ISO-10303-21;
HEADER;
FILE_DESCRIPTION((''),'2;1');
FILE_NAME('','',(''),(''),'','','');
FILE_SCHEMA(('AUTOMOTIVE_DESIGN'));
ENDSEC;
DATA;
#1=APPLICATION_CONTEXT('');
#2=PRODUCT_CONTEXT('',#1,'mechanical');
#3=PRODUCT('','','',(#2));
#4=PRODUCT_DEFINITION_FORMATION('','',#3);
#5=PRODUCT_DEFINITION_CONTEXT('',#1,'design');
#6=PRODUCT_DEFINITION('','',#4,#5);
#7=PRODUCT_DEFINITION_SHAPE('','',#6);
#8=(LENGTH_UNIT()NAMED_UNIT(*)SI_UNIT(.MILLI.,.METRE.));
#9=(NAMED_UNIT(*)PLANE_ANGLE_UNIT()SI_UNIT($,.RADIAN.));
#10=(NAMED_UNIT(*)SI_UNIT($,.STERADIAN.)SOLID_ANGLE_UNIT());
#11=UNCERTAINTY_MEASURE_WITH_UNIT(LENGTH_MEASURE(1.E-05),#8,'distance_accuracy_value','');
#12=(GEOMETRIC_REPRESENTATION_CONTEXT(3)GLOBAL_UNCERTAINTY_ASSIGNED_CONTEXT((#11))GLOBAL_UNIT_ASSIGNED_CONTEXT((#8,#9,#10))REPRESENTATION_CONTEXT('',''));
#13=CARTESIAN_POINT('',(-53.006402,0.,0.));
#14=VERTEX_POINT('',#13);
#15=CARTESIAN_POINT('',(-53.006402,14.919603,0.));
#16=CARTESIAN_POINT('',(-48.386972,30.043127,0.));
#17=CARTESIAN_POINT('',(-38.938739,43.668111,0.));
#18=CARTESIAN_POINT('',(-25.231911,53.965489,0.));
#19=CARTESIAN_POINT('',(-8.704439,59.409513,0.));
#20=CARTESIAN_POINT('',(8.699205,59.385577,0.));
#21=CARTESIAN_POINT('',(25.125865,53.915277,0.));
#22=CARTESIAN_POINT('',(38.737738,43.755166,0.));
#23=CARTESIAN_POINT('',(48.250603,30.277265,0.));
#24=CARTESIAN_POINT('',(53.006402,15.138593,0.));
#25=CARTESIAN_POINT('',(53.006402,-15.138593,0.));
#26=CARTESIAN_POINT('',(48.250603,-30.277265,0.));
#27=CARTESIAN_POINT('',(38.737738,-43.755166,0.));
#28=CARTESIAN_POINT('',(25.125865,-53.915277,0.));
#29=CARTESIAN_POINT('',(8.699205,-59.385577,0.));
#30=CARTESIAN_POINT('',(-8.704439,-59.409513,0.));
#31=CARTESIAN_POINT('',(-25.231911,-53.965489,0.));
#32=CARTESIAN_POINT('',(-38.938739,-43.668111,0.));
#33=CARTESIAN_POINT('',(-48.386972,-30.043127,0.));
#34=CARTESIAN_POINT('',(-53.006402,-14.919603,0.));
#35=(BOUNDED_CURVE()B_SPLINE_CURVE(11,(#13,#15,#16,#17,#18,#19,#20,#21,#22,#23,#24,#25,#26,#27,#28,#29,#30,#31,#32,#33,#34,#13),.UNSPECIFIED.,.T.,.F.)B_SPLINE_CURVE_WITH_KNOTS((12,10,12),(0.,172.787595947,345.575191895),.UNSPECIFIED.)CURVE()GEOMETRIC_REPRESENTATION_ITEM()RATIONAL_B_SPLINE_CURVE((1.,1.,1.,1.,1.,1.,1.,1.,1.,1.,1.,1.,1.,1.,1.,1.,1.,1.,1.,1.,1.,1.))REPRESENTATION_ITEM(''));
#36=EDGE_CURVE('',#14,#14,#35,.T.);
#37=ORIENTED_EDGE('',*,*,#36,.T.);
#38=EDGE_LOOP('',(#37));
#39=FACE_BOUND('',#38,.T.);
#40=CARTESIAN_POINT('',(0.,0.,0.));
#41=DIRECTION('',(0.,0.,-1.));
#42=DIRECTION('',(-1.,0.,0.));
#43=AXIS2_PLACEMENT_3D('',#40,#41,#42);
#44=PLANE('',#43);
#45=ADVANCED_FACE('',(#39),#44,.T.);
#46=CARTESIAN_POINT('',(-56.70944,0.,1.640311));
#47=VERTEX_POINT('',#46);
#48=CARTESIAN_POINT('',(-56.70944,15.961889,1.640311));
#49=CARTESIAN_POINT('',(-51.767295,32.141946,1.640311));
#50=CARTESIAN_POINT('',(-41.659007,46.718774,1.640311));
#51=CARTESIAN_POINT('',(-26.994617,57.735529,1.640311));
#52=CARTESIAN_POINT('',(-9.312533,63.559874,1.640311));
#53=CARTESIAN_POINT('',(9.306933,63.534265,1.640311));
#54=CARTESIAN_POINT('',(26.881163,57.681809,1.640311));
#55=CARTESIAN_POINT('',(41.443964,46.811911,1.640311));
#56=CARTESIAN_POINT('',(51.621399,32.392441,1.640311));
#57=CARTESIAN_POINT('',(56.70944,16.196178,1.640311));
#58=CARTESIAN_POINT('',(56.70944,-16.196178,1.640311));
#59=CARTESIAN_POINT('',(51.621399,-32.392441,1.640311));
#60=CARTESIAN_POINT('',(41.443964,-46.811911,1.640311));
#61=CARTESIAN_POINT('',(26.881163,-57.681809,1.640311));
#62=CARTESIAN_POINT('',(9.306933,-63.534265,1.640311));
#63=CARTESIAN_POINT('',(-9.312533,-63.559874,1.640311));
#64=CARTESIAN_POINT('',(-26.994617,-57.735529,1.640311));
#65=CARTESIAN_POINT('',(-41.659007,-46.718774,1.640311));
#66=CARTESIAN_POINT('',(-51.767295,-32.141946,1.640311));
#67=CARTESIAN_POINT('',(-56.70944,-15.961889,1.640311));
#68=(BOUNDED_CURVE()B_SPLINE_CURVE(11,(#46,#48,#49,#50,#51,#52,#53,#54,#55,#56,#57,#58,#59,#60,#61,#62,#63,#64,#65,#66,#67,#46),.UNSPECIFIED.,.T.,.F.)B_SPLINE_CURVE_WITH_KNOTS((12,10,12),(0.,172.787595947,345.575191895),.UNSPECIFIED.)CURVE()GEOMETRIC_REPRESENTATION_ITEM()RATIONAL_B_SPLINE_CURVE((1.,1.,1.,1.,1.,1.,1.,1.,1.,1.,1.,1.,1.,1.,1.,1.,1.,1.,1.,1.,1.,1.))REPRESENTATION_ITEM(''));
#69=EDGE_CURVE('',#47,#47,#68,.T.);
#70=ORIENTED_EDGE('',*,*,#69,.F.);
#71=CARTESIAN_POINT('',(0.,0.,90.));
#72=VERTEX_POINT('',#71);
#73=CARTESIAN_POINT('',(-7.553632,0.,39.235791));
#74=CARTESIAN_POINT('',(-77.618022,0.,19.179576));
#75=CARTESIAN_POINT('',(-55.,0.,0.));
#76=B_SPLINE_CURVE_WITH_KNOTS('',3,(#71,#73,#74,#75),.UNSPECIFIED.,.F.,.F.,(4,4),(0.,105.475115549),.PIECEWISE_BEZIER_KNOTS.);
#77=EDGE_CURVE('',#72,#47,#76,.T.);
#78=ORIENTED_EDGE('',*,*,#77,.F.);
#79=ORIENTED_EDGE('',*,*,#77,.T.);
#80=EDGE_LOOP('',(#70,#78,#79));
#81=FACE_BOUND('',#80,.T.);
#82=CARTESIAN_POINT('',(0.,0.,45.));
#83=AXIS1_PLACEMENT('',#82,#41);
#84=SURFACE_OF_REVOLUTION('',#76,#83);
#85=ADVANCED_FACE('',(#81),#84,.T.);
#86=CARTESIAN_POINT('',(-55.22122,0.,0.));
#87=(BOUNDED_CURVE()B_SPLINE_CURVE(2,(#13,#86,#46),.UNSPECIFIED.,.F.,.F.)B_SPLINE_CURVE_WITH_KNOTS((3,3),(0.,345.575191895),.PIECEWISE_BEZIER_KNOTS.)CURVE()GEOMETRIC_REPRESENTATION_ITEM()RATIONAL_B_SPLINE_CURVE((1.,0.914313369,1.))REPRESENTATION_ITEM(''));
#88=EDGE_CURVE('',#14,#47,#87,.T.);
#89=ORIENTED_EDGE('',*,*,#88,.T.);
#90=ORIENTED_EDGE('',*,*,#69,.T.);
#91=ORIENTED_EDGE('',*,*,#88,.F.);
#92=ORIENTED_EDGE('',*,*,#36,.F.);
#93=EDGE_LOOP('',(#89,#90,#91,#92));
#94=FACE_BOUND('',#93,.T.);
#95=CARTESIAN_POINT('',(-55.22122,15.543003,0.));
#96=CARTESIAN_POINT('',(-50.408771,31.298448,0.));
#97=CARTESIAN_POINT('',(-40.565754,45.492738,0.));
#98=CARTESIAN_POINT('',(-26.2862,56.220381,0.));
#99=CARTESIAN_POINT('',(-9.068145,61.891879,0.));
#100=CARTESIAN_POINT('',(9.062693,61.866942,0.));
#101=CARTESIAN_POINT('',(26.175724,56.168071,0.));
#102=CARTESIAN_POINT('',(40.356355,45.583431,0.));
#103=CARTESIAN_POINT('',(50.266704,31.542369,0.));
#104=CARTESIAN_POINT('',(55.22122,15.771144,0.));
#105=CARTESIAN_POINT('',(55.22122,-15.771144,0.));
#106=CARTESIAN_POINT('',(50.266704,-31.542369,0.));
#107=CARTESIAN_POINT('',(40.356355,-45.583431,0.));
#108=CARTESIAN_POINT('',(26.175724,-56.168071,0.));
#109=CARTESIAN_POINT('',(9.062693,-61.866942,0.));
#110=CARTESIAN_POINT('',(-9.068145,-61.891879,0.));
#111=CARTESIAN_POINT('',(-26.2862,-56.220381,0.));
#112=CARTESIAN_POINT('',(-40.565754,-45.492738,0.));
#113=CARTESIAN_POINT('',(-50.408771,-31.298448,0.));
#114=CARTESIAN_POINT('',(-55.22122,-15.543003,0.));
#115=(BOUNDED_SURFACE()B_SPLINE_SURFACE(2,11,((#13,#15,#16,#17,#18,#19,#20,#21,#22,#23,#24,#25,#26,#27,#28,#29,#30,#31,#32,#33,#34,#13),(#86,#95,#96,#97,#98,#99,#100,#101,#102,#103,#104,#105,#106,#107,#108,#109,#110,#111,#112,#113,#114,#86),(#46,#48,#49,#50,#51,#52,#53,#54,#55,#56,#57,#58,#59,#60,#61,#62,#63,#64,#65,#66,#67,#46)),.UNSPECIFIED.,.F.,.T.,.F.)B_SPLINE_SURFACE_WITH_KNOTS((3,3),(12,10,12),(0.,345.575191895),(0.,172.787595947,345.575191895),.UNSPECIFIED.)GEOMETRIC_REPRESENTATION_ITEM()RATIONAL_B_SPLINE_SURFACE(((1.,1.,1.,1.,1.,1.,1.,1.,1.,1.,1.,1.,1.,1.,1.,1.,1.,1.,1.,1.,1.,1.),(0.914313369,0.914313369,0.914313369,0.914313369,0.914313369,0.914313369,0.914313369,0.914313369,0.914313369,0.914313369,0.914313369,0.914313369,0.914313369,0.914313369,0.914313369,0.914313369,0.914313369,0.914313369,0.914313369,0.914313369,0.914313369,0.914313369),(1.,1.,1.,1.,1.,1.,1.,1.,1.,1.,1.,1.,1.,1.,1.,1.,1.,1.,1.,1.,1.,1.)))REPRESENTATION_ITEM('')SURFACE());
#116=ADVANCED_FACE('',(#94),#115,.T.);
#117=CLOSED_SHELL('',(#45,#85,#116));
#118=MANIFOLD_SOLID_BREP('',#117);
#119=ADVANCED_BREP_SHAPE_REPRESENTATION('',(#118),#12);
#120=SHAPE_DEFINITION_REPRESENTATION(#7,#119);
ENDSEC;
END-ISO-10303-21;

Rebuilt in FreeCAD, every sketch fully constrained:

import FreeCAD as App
import Part
import Sketcher


def edges_at(feature, points):
    """Names of the edges that pass closest to the given points."""
    edges = feature.Shape.Edges
    near = lambda p: min(range(len(edges)), key=lambda i: edges[i].distToShape(Part.Vertex(*p))[0])
    return sorted({f"Edge{near(p) + 1}" for p in points})

doc = App.newDocument("Part")
body = doc.addObject("PartDesign::Body", "Body")

# Sketch on XZ plane
sketch1 = doc.addObject("Sketcher::SketchObject", "Sketch")
body.addObject(sketch1)
sketch1.AttachmentSupport = (doc.XZ_Plane, [""])
sketch1.MapMode = "FlatFace"
sketch1.addGeometry([
    Part.LineSegment(App.Vector(-55, 0, 0), App.Vector(0, 0, 0)),
    Part.LineSegment(App.Vector(0, 0, 0), App.Vector(0, 90, 0)),
    Part.BSplineCurve([App.Vector(0, 90, 0), App.Vector(-7.553632, 39.235791, 0), App.Vector(-77.618022, 19.179576, 0), App.Vector(-55, 0, 0)], [4, 4], [0, 105.475115549], False, 3, [1, 1, 1, 1], False),
], False)
sketch1.addConstraint([
    Sketcher.Constraint("Block", 2),
    Sketcher.Constraint("Coincident", 0, 2, 1, 1),
    Sketcher.Constraint("Coincident", 1, 2, 2, 1),
    Sketcher.Constraint("Coincident", 2, 2, 0, 1),
    Sketcher.Constraint("Horizontal", 0),
    Sketcher.Constraint("Vertical", 1),
])
revolution = doc.addObject("PartDesign::Revolution", "Revolution")
body.addObject(revolution)
revolution.Profile = sketch1
revolution.ReferenceAxis = (sketch1, ["V_Axis"])
revolution.Angle = 360
doc.recompute()

fillet = doc.addObject("PartDesign::Fillet", "Fillet")
body.addObject(fillet)
fillet.Base = (revolution, edges_at(revolution, [(55, 0, 0)]))
fillet.Radius = 5

doc.recompute()
